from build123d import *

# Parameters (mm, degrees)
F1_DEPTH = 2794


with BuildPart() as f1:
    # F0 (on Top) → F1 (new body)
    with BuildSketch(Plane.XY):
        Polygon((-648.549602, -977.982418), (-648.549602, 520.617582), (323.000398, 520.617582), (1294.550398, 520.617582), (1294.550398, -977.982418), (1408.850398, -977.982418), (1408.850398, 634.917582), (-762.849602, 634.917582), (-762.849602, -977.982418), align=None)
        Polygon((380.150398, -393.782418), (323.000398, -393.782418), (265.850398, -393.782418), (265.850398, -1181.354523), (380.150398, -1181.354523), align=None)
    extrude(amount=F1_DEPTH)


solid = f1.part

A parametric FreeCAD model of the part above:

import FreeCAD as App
import Part
import Sketcher

V = App.Vector
Q = App.Units.Quantity


def add_polygon(sketch, points):
    """Adds a closed chain of lines whose ends are joined by coincident constraints."""
    first, n = sketch.GeometryCount, len(points)
    for a, b in zip(points, points[1:] + points[:1]):
        sketch.addGeometry(Part.LineSegment(App.Vector(*a, 0), App.Vector(*b, 0)), False)
    for i in range(n):
        sketch.addConstraint(Sketcher.Constraint("Coincident", first + i, 2, first + (i + 1) % n, 1))

doc = App.newDocument("Part")
body = doc.addObject("PartDesign::Body", "Body")
body.AllowCompound = True

# Sketch on XY plane
sketch1 = body.newObject("Sketcher::SketchObject", "Sketch")
sketch1.AttachmentSupport = (doc.getObject("XY_Plane"), [""])
sketch1.MapMode = "FlatFace"
add_polygon(sketch1, [(-649, -978), (-649, 521), (1295, 521), (1295, -978), (1409, -978), (1409, 635), (-763, 635), (-763, -978)])  # lines 0-7
add_polygon(sketch1, [(380, -394), (266, -394), (266, -1181), (380, -1181)])  # lines 8-11
sketch1.addConstraint(Sketcher.Constraint("Vertical", 0))
sketch1.addConstraint(Sketcher.Constraint("Horizontal", 1))
sketch1.addConstraint(Sketcher.Constraint("Vertical", 2))
sketch1.addConstraint(Sketcher.Constraint("Horizontal", 3))
sketch1.addConstraint(Sketcher.Constraint("Vertical", 4))
sketch1.addConstraint(Sketcher.Constraint("Horizontal", 5))
sketch1.addConstraint(Sketcher.Constraint("Vertical", 6))
sketch1.addConstraint(Sketcher.Constraint("Horizontal", 7))
sketch1.addConstraint(Sketcher.Constraint("Horizontal", 8))
sketch1.addConstraint(Sketcher.Constraint("Vertical", 9))
sketch1.addConstraint(Sketcher.Constraint("Horizontal", 10))
sketch1.addConstraint(Sketcher.Constraint("Vertical", 11))
sketch1.addConstraint(Sketcher.Constraint("Horizontal", 3, 2, 6, 2))
sketch1.addConstraint(Sketcher.Constraint("Equal", 3, 7))
sketch1.addConstraint(Sketcher.Constraint("Equal", 7, 8))
sketch1.addConstraint(Sketcher.Constraint("DistanceY", 0, 1, 0, 2, Q("59 in")))
sketch1.addConstraint(Sketcher.Constraint("DistanceX", 1, 1, 1, 2, Q("76.5 in")))
sketch1.addConstraint(Sketcher.Constraint("DistanceX", 3, 1, 3, 2, Q("4.5 in")))
sketch1.addConstraint(Sketcher.Constraint("DistanceY", 4, 1, 4, 2, Q("63.5 in")))
sketch1.addConstraint(Sketcher.Constraint("DistanceX", 7, 2, 8, 2, Q("36 in")))
sketch1.addConstraint(Sketcher.Constraint("DistanceY", 7, 2, 8, 2, Q("23 in")))
sketch1.addConstraint(Sketcher.Constraint("DistanceX", 0, 2, -1, 1, Q("648.549602 mm")))
sketch1.addConstraint(Sketcher.Constraint("DistanceY", 9, 2, 9, 1, Q("787.572105 mm")))
sketch1.addConstraint(Sketcher.Constraint("DistanceY", -1, 1, 0, 2, Q("520.617582 mm")))
pad1 = body.newObject("PartDesign::Pad", "Pad")
pad1.Profile = sketch1
pad1.Length = Q("110 in")

doc.recompute()
